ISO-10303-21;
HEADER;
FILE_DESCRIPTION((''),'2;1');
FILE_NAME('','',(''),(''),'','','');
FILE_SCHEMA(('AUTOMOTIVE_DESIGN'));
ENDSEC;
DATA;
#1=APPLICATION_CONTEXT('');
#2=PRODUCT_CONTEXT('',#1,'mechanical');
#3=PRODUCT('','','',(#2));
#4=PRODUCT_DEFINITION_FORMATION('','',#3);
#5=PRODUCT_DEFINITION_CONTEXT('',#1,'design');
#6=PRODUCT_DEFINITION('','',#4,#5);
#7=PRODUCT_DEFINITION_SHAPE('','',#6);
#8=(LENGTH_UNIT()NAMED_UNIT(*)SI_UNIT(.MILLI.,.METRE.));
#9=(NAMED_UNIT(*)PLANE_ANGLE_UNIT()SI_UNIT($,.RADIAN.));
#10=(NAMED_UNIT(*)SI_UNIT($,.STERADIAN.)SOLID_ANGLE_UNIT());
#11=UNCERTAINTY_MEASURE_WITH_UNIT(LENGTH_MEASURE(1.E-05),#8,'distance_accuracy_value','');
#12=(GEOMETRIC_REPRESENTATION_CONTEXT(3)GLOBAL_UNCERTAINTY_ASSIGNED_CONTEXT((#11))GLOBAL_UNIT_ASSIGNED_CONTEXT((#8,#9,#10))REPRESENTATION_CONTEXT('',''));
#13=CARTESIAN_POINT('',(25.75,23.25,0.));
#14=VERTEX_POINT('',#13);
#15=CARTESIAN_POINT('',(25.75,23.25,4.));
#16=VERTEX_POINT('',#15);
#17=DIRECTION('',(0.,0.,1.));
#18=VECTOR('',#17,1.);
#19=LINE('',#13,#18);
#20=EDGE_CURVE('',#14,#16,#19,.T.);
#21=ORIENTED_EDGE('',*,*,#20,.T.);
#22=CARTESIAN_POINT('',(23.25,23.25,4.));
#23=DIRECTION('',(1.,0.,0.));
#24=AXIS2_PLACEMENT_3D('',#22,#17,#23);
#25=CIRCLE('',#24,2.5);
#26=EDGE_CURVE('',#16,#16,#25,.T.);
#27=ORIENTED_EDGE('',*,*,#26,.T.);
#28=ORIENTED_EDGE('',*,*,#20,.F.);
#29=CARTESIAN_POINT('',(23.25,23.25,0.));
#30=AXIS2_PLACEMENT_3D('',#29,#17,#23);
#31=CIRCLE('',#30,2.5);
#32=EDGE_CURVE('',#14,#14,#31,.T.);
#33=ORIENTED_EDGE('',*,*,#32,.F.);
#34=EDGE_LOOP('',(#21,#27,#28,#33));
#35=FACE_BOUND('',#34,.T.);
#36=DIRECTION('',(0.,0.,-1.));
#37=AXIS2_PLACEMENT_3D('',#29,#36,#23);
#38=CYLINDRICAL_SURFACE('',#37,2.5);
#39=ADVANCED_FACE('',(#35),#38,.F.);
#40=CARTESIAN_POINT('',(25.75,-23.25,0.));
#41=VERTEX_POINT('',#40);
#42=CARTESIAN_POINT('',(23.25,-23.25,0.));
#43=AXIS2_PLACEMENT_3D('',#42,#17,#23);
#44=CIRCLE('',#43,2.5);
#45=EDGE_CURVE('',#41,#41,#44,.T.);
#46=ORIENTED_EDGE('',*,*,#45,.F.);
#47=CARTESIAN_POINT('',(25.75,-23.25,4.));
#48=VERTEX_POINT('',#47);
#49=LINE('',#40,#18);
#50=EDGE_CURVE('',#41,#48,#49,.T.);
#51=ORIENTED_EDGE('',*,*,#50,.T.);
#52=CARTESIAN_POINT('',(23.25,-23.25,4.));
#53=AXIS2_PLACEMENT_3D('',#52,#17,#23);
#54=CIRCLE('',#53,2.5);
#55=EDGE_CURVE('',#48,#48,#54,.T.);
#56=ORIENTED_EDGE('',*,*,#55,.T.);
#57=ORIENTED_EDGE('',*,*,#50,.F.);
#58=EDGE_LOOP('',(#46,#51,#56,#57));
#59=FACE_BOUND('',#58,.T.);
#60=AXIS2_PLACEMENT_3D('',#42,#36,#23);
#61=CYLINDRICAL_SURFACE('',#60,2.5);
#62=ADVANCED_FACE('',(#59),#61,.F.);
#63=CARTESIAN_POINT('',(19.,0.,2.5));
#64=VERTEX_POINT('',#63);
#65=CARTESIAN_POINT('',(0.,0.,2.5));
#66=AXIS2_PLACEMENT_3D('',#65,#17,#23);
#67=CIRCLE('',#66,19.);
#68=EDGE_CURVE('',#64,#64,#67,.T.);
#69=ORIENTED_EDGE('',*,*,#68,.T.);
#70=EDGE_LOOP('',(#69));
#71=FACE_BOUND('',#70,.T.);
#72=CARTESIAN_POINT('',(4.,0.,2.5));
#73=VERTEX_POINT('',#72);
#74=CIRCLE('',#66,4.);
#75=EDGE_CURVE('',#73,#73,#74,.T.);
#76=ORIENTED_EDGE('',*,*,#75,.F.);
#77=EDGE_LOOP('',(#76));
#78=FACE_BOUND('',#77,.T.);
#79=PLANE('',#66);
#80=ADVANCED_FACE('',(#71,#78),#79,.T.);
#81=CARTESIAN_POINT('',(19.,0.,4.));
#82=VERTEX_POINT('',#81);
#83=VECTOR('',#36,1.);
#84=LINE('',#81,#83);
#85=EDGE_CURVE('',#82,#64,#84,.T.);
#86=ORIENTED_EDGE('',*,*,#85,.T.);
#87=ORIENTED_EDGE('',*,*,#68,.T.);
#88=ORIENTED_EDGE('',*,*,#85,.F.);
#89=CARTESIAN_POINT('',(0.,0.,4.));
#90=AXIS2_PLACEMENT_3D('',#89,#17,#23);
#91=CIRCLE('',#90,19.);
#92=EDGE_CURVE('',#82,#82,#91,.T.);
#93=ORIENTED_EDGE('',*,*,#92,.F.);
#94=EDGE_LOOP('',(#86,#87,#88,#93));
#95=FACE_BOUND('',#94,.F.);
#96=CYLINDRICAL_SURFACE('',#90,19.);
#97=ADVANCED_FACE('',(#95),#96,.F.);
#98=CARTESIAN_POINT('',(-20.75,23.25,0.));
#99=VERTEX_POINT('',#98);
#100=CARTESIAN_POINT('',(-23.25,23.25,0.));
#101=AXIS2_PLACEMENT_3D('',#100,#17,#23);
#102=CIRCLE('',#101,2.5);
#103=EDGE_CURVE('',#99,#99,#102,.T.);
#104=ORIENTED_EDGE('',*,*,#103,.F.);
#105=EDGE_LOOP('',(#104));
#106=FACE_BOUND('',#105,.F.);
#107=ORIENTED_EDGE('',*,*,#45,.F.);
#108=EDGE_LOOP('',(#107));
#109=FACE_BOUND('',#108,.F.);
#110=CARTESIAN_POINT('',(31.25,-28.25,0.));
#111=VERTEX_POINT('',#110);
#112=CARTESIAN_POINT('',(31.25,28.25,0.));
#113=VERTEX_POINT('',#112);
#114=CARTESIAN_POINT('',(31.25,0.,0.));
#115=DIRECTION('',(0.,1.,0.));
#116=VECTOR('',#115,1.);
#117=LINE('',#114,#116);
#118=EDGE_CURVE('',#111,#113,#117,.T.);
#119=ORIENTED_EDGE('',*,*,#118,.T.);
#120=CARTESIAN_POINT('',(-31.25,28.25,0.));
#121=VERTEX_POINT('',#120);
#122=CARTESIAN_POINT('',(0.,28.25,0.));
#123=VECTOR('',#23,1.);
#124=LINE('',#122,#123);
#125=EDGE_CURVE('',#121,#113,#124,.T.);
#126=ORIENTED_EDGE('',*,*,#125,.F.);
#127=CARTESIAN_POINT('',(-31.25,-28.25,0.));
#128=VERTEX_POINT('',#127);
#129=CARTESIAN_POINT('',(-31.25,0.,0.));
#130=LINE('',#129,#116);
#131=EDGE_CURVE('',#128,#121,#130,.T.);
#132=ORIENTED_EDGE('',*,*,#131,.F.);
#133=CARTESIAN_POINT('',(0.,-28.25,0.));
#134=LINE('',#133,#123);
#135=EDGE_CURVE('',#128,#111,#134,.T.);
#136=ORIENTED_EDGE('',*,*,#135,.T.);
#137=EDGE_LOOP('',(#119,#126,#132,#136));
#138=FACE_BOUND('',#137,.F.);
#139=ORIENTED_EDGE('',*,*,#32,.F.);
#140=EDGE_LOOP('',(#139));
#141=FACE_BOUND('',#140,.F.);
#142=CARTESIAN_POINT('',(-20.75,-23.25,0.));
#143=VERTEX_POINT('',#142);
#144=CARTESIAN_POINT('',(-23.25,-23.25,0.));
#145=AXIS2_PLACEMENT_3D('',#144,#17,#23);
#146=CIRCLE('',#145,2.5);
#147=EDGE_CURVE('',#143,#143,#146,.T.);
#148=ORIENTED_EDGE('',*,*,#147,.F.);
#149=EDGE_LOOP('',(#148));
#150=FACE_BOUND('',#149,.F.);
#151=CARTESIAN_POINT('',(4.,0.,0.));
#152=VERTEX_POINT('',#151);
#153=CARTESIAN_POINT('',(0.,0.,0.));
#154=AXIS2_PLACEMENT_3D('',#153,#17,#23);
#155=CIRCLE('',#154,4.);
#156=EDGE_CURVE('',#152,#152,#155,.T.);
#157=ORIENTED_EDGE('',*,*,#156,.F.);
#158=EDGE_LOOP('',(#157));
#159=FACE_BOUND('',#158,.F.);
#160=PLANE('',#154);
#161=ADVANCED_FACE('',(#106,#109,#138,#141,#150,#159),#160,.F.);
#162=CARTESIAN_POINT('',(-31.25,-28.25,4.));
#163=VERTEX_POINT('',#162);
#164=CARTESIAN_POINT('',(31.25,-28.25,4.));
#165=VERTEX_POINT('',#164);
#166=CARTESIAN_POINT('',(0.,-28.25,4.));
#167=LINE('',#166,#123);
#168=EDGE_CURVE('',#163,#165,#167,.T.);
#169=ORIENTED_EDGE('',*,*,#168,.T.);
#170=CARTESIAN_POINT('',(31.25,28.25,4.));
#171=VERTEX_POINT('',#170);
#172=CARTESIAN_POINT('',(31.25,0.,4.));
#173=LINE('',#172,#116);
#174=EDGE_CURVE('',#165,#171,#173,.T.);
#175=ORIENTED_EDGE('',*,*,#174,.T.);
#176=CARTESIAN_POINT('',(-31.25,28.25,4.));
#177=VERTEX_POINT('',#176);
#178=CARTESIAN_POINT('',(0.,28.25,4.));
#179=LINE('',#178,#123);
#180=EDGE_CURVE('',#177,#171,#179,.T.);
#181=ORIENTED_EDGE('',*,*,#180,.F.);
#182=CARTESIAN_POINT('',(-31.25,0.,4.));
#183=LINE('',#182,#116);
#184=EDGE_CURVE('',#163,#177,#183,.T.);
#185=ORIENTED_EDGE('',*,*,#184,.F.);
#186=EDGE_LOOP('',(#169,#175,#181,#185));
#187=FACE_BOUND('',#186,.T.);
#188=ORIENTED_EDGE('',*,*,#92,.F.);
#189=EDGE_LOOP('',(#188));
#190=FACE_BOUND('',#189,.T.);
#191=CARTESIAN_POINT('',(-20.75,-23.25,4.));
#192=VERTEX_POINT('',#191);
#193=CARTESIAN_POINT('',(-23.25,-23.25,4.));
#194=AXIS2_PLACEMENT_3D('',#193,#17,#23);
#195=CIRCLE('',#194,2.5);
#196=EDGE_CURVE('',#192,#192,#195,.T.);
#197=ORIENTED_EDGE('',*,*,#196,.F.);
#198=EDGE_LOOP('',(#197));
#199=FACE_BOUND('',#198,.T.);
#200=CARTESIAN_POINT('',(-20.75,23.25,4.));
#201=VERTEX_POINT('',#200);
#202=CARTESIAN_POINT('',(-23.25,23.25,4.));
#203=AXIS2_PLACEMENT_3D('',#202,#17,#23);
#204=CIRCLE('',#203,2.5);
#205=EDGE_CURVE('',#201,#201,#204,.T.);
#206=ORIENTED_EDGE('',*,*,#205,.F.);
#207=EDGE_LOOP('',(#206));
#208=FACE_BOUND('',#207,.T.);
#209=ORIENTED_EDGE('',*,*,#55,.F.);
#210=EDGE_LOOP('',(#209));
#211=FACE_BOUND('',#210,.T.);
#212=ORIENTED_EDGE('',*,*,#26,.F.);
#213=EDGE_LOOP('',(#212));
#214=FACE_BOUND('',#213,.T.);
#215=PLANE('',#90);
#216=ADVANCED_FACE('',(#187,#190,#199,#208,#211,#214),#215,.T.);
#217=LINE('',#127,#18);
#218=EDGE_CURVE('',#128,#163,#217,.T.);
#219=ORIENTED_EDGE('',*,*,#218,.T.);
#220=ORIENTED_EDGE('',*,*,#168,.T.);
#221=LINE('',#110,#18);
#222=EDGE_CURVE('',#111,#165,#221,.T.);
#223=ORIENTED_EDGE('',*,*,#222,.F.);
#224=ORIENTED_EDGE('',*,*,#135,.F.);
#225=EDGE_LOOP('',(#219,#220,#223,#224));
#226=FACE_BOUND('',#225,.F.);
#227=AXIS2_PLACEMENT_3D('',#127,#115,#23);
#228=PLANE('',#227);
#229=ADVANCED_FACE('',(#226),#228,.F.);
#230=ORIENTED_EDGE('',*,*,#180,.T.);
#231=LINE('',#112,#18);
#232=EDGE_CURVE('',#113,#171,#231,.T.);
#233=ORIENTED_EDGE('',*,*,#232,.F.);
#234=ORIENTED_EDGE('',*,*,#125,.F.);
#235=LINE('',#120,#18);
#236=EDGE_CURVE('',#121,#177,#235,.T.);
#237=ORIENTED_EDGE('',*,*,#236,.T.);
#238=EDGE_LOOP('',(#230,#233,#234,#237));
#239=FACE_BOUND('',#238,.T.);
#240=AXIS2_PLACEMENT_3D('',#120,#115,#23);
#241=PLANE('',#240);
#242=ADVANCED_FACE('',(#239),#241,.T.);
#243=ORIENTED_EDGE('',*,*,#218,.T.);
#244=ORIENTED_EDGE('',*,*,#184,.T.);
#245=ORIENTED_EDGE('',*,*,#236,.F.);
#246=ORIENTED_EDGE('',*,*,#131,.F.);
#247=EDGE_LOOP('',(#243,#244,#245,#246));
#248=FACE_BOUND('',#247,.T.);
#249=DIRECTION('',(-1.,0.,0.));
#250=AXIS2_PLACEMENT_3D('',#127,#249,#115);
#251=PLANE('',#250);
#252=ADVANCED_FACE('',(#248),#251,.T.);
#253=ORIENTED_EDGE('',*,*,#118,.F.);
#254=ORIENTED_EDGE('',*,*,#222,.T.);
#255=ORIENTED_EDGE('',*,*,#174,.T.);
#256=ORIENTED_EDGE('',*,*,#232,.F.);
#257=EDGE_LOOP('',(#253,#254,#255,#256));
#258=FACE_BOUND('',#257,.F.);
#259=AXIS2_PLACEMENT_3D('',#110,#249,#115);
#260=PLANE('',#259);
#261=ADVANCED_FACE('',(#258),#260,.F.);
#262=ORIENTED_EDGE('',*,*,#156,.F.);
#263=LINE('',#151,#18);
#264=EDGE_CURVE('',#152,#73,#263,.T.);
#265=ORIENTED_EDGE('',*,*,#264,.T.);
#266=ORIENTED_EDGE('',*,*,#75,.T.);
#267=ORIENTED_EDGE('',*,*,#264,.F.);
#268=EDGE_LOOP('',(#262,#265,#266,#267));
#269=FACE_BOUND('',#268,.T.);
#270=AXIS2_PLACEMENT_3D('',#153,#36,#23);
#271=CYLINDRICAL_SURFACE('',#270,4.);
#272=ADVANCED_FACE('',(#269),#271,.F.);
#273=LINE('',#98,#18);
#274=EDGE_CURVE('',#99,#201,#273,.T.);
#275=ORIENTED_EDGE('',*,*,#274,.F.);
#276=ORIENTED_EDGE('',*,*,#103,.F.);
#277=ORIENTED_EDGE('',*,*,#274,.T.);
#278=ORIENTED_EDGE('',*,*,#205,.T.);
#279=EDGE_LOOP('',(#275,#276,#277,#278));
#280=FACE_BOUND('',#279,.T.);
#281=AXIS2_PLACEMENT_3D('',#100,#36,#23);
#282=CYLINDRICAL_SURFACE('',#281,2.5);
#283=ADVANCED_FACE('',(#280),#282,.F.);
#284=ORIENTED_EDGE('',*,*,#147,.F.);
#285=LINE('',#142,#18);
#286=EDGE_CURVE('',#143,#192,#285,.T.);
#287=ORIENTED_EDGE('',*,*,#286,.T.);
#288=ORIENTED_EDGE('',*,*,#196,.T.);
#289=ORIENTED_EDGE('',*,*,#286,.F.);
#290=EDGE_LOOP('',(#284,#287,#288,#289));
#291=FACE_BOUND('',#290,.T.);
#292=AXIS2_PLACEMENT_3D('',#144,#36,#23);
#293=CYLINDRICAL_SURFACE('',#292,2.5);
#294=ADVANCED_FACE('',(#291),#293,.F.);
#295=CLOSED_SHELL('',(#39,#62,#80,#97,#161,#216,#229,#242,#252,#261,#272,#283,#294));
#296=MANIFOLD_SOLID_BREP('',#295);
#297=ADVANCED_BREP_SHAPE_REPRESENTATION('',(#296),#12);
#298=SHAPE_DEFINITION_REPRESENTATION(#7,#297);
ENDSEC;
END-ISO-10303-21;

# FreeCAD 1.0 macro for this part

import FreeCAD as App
import Part
import Sketcher

doc = App.newDocument("Part")
body = doc.addObject("PartDesign::Body", "Body")

# Sketch on XY plane
sketch1 = body.newObject("Sketcher::SketchObject", "Sketch")
sketch1.AttachmentSupport = (doc.getObject("XY_Plane"), [""])
sketch1.MapMode = "FlatFace"
sketch1.addGeometry([
    Part.LineSegment(App.Vector(-31.25, 28.25, 0), App.Vector(-31.25, -28.25, 0)),  # 0
    Part.LineSegment(App.Vector(-31.25, -28.25, 0), App.Vector(31.25, -28.25, 0)),  # 1
    Part.LineSegment(App.Vector(31.25, -28.25, 0), App.Vector(31.25, 28.25, 0)),  # 2
    Part.LineSegment(App.Vector(31.25, 28.25, 0), App.Vector(-31.25, 28.25, 0)),  # 3
    Part.Circle(App.Vector(-23.25, -23.25, 0), App.Vector(0, 0, 1), 2.5),  # 4
    Part.Circle(App.Vector(0, 0, 0), App.Vector(0, 0, 1), 4),  # 5
    Part.Circle(App.Vector(23.25, -23.25, 0), App.Vector(0, 0, 1), 2.5),  # 6
    Part.Circle(App.Vector(-23.25, 23.25, 0), App.Vector(0, 0, 1), 2.5),  # 7
    Part.Circle(App.Vector(23.25, 23.25, 0), App.Vector(0, 0, 1), 2.5),  # 8
], False)
sketch1.addConstraint([
    Sketcher.Constraint("Coincident", 0, 2, 1, 1),
    Sketcher.Constraint("Coincident", 1, 2, 2, 1),
    Sketcher.Constraint("Coincident", 2, 2, 3, 1),
    Sketcher.Constraint("Coincident", 3, 2, 0, 1),
    Sketcher.Constraint("Vertical", 0),
    Sketcher.Constraint("Horizontal", 1),
    Sketcher.Constraint("Vertical", 2),
    Sketcher.Constraint("Horizontal", 3),
    Sketcher.Constraint("Coincident", 5, 3, -1, 1),
    Sketcher.Constraint("Equal", 4, 6),
    Sketcher.Constraint("Equal", 6, 7),
    Sketcher.Constraint("Equal", 7, 8),
    Sketcher.Constraint("Symmetric", 6, 3, 7, 3, -1, 1),
    Sketcher.Constraint("Symmetric", 4, 3, 8, 3, -1, 1),
    Sketcher.Constraint("Symmetric", 0, 2, 2, 2, -1, 1),
    Sketcher.Constraint("Symmetric", 4, 3, 6, 3, -2),
    Sketcher.Constraint("Diameter", 4, 5.0),
    Sketcher.Constraint("Diameter", 5, 8.0),
    Sketcher.Constraint("DistanceX", 1, 1, 1, 2, 62.5),
    Sketcher.Constraint("DistanceY", 0, 2, 0, 1, 56.5),
    Sketcher.Constraint("DistanceX", 0, 2, 4, 3, 8.0),
    Sketcher.Constraint("DistanceY", 0, 2, 4, 3, 5.0),
])
pad1 = body.newObject("PartDesign::Pad", "Pad")
pad1.Profile = sketch1
pad1.Length = 4

# Sketch on XY plane
sketch2 = body.newObject("Sketcher::SketchObject", "Sketch001")
sketch2.AttachmentSupport = (doc.getObject("XY_Plane"), [""])
sketch2.MapMode = "FlatFace"
sketch2.AttachmentOffset = App.Placement(App.Vector(0, 0, 4), App.Rotation())
sketch2.addGeometry([
    Part.Circle(App.Vector(0, 0, 0), App.Vector(0, 0, 1), 19),
    Part.Circle(App.Vector(0, 0, 0), App.Vector(0, 0, 1), 4),
], False)
sketch2.addConstraint([
    Sketcher.Constraint("Coincident", 0, 3, -1, 1),
    Sketcher.Constraint("Coincident", 1, 3, -1, 1),
    Sketcher.Constraint("Diameter", 0, 38.0),
    Sketcher.Constraint("Diameter", 1, 8.0),
])
pocket1 = body.newObject("PartDesign::Pocket", "Pocket")
pocket1.Profile = sketch2
pocket1.Length = 1.5

doc.recompute()
